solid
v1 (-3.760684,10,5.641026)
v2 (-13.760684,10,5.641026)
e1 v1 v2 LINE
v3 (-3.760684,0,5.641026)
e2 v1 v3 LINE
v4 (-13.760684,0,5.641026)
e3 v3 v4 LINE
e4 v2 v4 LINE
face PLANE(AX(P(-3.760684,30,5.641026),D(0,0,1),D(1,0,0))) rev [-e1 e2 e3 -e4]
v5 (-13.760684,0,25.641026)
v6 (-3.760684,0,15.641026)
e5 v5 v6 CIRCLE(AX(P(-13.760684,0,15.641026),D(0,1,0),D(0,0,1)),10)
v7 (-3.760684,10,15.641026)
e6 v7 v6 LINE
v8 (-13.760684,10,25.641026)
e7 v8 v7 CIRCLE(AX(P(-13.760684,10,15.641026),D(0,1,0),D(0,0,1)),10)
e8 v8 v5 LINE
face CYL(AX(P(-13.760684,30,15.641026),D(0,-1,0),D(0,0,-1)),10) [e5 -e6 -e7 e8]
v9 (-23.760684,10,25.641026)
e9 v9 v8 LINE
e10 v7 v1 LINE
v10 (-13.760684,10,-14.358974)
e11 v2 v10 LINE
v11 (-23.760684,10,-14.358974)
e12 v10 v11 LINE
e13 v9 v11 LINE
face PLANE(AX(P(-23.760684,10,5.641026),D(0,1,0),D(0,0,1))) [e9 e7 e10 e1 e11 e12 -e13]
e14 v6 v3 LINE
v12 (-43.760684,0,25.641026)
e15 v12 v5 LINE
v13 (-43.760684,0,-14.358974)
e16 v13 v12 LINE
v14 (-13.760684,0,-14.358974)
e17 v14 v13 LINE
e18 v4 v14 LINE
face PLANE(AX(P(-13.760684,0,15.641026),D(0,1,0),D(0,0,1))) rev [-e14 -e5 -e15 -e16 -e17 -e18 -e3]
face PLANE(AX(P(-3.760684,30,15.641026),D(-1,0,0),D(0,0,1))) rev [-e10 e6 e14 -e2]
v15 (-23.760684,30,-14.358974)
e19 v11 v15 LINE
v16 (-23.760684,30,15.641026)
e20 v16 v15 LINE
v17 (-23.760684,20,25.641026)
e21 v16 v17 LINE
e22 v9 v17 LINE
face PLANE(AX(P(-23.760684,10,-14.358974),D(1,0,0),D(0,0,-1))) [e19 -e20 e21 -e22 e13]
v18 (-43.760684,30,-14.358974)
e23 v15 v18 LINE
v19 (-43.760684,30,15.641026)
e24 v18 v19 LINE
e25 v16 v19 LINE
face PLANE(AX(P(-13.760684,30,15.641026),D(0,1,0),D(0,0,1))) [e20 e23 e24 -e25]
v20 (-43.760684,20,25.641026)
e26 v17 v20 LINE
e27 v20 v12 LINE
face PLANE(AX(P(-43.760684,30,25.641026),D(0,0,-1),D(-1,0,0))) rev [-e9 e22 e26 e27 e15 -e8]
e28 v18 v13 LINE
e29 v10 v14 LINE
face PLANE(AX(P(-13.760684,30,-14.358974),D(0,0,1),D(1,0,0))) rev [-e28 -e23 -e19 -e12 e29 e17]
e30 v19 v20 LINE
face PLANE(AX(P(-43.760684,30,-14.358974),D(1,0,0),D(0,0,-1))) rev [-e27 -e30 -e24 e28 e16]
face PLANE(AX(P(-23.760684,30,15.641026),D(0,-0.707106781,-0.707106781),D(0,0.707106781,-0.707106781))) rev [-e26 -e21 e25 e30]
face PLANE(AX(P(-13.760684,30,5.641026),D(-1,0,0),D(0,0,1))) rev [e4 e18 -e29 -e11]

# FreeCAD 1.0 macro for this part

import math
import FreeCAD as App
import Part
import Sketcher
from FreeCAD import Vector
Q = App.Units.Quantity

doc = App.newDocument("Part")
body = doc.addObject("PartDesign::Body", "Body")

# Sketch on XZ plane
sketch1 = body.newObject("Sketcher::SketchObject", "Sketch")
sketch1.AttachmentSupport = (doc.getObject("XZ_Plane"), [""])
sketch1.MapMode = "FlatFace"
sketch1.addGeometry([
    Part.LineSegment(Vector(-44, -14, 0), Vector(-44, 26, 0)),  # 0
    Part.LineSegment(Vector(-44, 26, 0), Vector(-14, 26, 0)),  # 1
    Part.ArcOfCircle(Part.Circle(Vector(-14, 16, 0), Vector(0, 0, 1), 10), math.radians(0), math.radians(90)),  # 2
    Part.LineSegment(Vector(-4, 16, 0), Vector(-4, 6, 0)),  # 3
    Part.LineSegment(Vector(-4, 6, 0), Vector(-14, 6, 0)),  # 4
    Part.LineSegment(Vector(-14, 6, 0), Vector(-14, -14, 0)),  # 5
    Part.LineSegment(Vector(-14, -14, 0), Vector(-44, -14, 0)),  # 6
], False)
sketch1.addConstraint([
    Sketcher.Constraint("Coincident", 0, 2, 1, 1),
    Sketcher.Constraint("Tangent", 1, 2, 2, 2),
    Sketcher.Constraint("Tangent", 2, 1, 3, 1),
    Sketcher.Constraint("Coincident", 3, 2, 4, 1),
    Sketcher.Constraint("Coincident", 4, 2, 5, 1),
    Sketcher.Constraint("Coincident", 5, 2, 6, 1),
    Sketcher.Constraint("Coincident", 6, 2, 0, 1),
    Sketcher.Constraint("Vertical", 0),
    Sketcher.Constraint("Horizontal", 1),
    Sketcher.Constraint("Vertical", 3),
    Sketcher.Constraint("Horizontal", 4),
    Sketcher.Constraint("Vertical", 5),
    Sketcher.Constraint("Horizontal", 6),
    Sketcher.Constraint("Vertical", 1, 2, 4, 2),
    Sketcher.Constraint("Equal", 4, 3),
    Sketcher.Constraint("Radius", 2, Q("10 mm")),
    Sketcher.Constraint("DistanceX", 1, 1, 1, 2, Q("30 mm")),
    Sketcher.Constraint("DistanceY", 0, 1, 0, 2, Q("40 mm")),
    Sketcher.Constraint("DistanceX", 2, 3, -1, 1, Q("13.760684 mm")),
    Sketcher.Constraint("DistanceY", -1, 1, 2, 3, Q("15.641026 mm")),
])
pad1 = body.newObject("PartDesign::Pad", "Pad")
pad1.Profile = sketch1
pad1.Length = 30
pad1.Reversed = True

# Sketch on XZ plane
sketch2 = body.newObject("Sketcher::SketchObject", "Sketch001")
sketch2.AttachmentSupport = (doc.getObject("XZ_Plane"), [""])
sketch2.MapMode = "FlatFace"
sketch2.AttachmentOffset = App.Placement(Vector(0, 0, -30), App.Rotation())
sketch2.addGeometry([
    Part.LineSegment(Vector(-51, -22, 0), Vector(-51, 33, 0)),  # 0
    Part.LineSegment(Vector(-51, 33, 0), Vector(4, 33, 0)),  # 1
    Part.LineSegment(Vector(4, 33, 0), Vector(4, -22, 0)),  # 2
    Part.LineSegment(Vector(4, -22, 0), Vector(-51, -22, 0)),  # 3
    Part.LineSegment(Vector(-24, 26, 0), Vector(-44, 26, 0)),  # 4
    Part.LineSegment(Vector(-44, 26, 0), Vector(-44, -14, 0)),  # 5
    Part.LineSegment(Vector(-44, -14, 0), Vector(-24, -14, 0)),  # 6
    Part.LineSegment(Vector(-24, -14, 0), Vector(-24, 26, 0)),  # 7
], False)
sketch2.addConstraint([
    Sketcher.Constraint("Coincident", 0, 2, 1, 1),
    Sketcher.Constraint("Coincident", 1, 2, 2, 1),
    Sketcher.Constraint("Coincident", 2, 2, 3, 1),
    Sketcher.Constraint("Coincident", 3, 2, 0, 1),
    Sketcher.Constraint("Coincident", 4, 2, 5, 1),
    Sketcher.Constraint("Coincident", 5, 2, 6, 1),
    Sketcher.Constraint("Coincident", 6, 2, 7, 1),
    Sketcher.Constraint("Coincident", 7, 2, 4, 1),
    Sketcher.Constraint("Vertical", 0),
    Sketcher.Constraint("Horizontal", 1),
    Sketcher.Constraint("Vertical", 2),
    Sketcher.Constraint("Horizontal", 3),
    Sketcher.Constraint("Horizontal", 4),
    Sketcher.Constraint("Vertical", 5),
    Sketcher.Constraint("Horizontal", 6),
    Sketcher.Constraint("Vertical", 7),
    Sketcher.Constraint("Equal", 3, 0),
    Sketcher.Constraint("DistanceX", 4, 2, 4, 1, Q("20 mm")),
    Sketcher.Constraint("DistanceY", 5, 2, 5, 1, Q("40 mm")),
    Sketcher.Constraint("DistanceX", 1, 1, 1, 2, Q("54.806 mm")),
    Sketcher.Constraint("DistanceX", 0, 2, -1, 1, Q("51.164 mm")),
    Sketcher.Constraint("DistanceY", -1, 1, 0, 2, Q("33.044 mm")),
    Sketcher.Constraint("DistanceX", 4, 2, -1, 1, Q("43.760684 mm")),
    Sketcher.Constraint("DistanceY", -1, 1, 4, 2, Q("25.641026 mm")),
])
pocket1 = body.newObject("PartDesign::Pocket", "Pocket")
pocket1.Profile = sketch2
pocket1.Length = 20
pocket1.Reversed = True

# Sketch on YZ plane
sketch3 = body.newObject("Sketcher::SketchObject", "Sketch002")
sketch3.AttachmentSupport = (doc.getObject("YZ_Plane"), [""])
sketch3.MapMode = "FlatFace"
sketch3.AttachmentOffset = App.Placement(Vector(0, 0, -43.760684), App.Rotation())
sketch3.addGeometry([
    Part.LineSegment(Vector(30, 16, 0), Vector(20, 26, 0)),
    Part.LineSegment(Vector(20, 26, 0), Vector(30, 26, 0)),
    Part.LineSegment(Vector(30, 26, 0), Vector(30, 16, 0)),
], False)
sketch3.addConstraint([
    Sketcher.Constraint("Coincident", 0, 2, 1, 1),
    Sketcher.Constraint("Coincident", 1, 2, 2, 1),
    Sketcher.Constraint("Coincident", 2, 2, 0, 1),
    Sketcher.Constraint("Horizontal", 1),
    Sketcher.Constraint("Vertical", 2),
    Sketcher.Constraint("Equal", 1, 2),
    Sketcher.Constraint("DistanceX", 1, 1, 1, 2, Q("10 mm")),
    Sketcher.Constraint("DistanceX", -1, 1, 0, 2, Q("20 mm")),
    Sketcher.Constraint("DistanceY", -1, 1, 0, 2, Q("25.641026 mm")),
])
pocket2 = body.newObject("PartDesign::Pocket", "Pocket001")
pocket2.Profile = sketch3
pocket2.Length = 20
pocket2.Reversed = True

doc.recompute()
